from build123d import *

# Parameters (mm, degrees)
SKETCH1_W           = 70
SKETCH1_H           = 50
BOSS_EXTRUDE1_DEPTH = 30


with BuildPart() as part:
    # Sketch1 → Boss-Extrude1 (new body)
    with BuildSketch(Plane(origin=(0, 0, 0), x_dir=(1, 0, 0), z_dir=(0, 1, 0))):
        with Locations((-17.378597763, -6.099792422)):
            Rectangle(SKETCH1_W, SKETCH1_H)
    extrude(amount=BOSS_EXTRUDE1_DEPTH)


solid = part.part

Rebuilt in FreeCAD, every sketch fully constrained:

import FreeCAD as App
import Part
import Sketcher
from FreeCAD import Vector

doc = App.newDocument("Part")
body = doc.addObject("PartDesign::Body", "Body")

sketch1 = body.newObject("Sketcher::SketchObject", "Sketch")
sketch1.AttachmentSupport = (doc.getObject("XZ_Plane"), [""])
sketch1.MapMode = "FlatFace"
sketch1.addGeometry([
    Part.LineSegment(Vector(-52, -19, 0), Vector(-52, 31, 0)),
    Part.LineSegment(Vector(-52, 31, 0), Vector(18, 31, 0)),
    Part.LineSegment(Vector(18, 31, 0), Vector(18, -19, 0)),
    Part.LineSegment(Vector(18, -19, 0), Vector(-52, -19, 0)),
], False)
sketch1.addConstraint([
    Sketcher.Constraint("Coincident", 0, 2, 1, 1),
    Sketcher.Constraint("Coincident", 1, 2, 2, 1),
    Sketcher.Constraint("Coincident", 2, 2, 3, 1),
    Sketcher.Constraint("Coincident", 3, 2, 0, 1),
    Sketcher.Constraint("Vertical", 0),
    Sketcher.Constraint("Horizontal", 1),
    Sketcher.Constraint("Vertical", 2),
    Sketcher.Constraint("Horizontal", 3),
    Sketcher.Constraint("DistanceX", 1, 1, 1, 2, 70.0),
    Sketcher.Constraint("DistanceY", 0, 1, 0, 2, 50.0),
    Sketcher.Constraint("DistanceX", 0, 2, -1, 1, 52.378598),
    Sketcher.Constraint("DistanceY", -1, 1, 0, 2, 31.099792),
])
pad1 = body.newObject("PartDesign::Pad", "Pad")
pad1.Profile = sketch1
pad1.Length = 30
pad1.Reversed = True

doc.recompute()
